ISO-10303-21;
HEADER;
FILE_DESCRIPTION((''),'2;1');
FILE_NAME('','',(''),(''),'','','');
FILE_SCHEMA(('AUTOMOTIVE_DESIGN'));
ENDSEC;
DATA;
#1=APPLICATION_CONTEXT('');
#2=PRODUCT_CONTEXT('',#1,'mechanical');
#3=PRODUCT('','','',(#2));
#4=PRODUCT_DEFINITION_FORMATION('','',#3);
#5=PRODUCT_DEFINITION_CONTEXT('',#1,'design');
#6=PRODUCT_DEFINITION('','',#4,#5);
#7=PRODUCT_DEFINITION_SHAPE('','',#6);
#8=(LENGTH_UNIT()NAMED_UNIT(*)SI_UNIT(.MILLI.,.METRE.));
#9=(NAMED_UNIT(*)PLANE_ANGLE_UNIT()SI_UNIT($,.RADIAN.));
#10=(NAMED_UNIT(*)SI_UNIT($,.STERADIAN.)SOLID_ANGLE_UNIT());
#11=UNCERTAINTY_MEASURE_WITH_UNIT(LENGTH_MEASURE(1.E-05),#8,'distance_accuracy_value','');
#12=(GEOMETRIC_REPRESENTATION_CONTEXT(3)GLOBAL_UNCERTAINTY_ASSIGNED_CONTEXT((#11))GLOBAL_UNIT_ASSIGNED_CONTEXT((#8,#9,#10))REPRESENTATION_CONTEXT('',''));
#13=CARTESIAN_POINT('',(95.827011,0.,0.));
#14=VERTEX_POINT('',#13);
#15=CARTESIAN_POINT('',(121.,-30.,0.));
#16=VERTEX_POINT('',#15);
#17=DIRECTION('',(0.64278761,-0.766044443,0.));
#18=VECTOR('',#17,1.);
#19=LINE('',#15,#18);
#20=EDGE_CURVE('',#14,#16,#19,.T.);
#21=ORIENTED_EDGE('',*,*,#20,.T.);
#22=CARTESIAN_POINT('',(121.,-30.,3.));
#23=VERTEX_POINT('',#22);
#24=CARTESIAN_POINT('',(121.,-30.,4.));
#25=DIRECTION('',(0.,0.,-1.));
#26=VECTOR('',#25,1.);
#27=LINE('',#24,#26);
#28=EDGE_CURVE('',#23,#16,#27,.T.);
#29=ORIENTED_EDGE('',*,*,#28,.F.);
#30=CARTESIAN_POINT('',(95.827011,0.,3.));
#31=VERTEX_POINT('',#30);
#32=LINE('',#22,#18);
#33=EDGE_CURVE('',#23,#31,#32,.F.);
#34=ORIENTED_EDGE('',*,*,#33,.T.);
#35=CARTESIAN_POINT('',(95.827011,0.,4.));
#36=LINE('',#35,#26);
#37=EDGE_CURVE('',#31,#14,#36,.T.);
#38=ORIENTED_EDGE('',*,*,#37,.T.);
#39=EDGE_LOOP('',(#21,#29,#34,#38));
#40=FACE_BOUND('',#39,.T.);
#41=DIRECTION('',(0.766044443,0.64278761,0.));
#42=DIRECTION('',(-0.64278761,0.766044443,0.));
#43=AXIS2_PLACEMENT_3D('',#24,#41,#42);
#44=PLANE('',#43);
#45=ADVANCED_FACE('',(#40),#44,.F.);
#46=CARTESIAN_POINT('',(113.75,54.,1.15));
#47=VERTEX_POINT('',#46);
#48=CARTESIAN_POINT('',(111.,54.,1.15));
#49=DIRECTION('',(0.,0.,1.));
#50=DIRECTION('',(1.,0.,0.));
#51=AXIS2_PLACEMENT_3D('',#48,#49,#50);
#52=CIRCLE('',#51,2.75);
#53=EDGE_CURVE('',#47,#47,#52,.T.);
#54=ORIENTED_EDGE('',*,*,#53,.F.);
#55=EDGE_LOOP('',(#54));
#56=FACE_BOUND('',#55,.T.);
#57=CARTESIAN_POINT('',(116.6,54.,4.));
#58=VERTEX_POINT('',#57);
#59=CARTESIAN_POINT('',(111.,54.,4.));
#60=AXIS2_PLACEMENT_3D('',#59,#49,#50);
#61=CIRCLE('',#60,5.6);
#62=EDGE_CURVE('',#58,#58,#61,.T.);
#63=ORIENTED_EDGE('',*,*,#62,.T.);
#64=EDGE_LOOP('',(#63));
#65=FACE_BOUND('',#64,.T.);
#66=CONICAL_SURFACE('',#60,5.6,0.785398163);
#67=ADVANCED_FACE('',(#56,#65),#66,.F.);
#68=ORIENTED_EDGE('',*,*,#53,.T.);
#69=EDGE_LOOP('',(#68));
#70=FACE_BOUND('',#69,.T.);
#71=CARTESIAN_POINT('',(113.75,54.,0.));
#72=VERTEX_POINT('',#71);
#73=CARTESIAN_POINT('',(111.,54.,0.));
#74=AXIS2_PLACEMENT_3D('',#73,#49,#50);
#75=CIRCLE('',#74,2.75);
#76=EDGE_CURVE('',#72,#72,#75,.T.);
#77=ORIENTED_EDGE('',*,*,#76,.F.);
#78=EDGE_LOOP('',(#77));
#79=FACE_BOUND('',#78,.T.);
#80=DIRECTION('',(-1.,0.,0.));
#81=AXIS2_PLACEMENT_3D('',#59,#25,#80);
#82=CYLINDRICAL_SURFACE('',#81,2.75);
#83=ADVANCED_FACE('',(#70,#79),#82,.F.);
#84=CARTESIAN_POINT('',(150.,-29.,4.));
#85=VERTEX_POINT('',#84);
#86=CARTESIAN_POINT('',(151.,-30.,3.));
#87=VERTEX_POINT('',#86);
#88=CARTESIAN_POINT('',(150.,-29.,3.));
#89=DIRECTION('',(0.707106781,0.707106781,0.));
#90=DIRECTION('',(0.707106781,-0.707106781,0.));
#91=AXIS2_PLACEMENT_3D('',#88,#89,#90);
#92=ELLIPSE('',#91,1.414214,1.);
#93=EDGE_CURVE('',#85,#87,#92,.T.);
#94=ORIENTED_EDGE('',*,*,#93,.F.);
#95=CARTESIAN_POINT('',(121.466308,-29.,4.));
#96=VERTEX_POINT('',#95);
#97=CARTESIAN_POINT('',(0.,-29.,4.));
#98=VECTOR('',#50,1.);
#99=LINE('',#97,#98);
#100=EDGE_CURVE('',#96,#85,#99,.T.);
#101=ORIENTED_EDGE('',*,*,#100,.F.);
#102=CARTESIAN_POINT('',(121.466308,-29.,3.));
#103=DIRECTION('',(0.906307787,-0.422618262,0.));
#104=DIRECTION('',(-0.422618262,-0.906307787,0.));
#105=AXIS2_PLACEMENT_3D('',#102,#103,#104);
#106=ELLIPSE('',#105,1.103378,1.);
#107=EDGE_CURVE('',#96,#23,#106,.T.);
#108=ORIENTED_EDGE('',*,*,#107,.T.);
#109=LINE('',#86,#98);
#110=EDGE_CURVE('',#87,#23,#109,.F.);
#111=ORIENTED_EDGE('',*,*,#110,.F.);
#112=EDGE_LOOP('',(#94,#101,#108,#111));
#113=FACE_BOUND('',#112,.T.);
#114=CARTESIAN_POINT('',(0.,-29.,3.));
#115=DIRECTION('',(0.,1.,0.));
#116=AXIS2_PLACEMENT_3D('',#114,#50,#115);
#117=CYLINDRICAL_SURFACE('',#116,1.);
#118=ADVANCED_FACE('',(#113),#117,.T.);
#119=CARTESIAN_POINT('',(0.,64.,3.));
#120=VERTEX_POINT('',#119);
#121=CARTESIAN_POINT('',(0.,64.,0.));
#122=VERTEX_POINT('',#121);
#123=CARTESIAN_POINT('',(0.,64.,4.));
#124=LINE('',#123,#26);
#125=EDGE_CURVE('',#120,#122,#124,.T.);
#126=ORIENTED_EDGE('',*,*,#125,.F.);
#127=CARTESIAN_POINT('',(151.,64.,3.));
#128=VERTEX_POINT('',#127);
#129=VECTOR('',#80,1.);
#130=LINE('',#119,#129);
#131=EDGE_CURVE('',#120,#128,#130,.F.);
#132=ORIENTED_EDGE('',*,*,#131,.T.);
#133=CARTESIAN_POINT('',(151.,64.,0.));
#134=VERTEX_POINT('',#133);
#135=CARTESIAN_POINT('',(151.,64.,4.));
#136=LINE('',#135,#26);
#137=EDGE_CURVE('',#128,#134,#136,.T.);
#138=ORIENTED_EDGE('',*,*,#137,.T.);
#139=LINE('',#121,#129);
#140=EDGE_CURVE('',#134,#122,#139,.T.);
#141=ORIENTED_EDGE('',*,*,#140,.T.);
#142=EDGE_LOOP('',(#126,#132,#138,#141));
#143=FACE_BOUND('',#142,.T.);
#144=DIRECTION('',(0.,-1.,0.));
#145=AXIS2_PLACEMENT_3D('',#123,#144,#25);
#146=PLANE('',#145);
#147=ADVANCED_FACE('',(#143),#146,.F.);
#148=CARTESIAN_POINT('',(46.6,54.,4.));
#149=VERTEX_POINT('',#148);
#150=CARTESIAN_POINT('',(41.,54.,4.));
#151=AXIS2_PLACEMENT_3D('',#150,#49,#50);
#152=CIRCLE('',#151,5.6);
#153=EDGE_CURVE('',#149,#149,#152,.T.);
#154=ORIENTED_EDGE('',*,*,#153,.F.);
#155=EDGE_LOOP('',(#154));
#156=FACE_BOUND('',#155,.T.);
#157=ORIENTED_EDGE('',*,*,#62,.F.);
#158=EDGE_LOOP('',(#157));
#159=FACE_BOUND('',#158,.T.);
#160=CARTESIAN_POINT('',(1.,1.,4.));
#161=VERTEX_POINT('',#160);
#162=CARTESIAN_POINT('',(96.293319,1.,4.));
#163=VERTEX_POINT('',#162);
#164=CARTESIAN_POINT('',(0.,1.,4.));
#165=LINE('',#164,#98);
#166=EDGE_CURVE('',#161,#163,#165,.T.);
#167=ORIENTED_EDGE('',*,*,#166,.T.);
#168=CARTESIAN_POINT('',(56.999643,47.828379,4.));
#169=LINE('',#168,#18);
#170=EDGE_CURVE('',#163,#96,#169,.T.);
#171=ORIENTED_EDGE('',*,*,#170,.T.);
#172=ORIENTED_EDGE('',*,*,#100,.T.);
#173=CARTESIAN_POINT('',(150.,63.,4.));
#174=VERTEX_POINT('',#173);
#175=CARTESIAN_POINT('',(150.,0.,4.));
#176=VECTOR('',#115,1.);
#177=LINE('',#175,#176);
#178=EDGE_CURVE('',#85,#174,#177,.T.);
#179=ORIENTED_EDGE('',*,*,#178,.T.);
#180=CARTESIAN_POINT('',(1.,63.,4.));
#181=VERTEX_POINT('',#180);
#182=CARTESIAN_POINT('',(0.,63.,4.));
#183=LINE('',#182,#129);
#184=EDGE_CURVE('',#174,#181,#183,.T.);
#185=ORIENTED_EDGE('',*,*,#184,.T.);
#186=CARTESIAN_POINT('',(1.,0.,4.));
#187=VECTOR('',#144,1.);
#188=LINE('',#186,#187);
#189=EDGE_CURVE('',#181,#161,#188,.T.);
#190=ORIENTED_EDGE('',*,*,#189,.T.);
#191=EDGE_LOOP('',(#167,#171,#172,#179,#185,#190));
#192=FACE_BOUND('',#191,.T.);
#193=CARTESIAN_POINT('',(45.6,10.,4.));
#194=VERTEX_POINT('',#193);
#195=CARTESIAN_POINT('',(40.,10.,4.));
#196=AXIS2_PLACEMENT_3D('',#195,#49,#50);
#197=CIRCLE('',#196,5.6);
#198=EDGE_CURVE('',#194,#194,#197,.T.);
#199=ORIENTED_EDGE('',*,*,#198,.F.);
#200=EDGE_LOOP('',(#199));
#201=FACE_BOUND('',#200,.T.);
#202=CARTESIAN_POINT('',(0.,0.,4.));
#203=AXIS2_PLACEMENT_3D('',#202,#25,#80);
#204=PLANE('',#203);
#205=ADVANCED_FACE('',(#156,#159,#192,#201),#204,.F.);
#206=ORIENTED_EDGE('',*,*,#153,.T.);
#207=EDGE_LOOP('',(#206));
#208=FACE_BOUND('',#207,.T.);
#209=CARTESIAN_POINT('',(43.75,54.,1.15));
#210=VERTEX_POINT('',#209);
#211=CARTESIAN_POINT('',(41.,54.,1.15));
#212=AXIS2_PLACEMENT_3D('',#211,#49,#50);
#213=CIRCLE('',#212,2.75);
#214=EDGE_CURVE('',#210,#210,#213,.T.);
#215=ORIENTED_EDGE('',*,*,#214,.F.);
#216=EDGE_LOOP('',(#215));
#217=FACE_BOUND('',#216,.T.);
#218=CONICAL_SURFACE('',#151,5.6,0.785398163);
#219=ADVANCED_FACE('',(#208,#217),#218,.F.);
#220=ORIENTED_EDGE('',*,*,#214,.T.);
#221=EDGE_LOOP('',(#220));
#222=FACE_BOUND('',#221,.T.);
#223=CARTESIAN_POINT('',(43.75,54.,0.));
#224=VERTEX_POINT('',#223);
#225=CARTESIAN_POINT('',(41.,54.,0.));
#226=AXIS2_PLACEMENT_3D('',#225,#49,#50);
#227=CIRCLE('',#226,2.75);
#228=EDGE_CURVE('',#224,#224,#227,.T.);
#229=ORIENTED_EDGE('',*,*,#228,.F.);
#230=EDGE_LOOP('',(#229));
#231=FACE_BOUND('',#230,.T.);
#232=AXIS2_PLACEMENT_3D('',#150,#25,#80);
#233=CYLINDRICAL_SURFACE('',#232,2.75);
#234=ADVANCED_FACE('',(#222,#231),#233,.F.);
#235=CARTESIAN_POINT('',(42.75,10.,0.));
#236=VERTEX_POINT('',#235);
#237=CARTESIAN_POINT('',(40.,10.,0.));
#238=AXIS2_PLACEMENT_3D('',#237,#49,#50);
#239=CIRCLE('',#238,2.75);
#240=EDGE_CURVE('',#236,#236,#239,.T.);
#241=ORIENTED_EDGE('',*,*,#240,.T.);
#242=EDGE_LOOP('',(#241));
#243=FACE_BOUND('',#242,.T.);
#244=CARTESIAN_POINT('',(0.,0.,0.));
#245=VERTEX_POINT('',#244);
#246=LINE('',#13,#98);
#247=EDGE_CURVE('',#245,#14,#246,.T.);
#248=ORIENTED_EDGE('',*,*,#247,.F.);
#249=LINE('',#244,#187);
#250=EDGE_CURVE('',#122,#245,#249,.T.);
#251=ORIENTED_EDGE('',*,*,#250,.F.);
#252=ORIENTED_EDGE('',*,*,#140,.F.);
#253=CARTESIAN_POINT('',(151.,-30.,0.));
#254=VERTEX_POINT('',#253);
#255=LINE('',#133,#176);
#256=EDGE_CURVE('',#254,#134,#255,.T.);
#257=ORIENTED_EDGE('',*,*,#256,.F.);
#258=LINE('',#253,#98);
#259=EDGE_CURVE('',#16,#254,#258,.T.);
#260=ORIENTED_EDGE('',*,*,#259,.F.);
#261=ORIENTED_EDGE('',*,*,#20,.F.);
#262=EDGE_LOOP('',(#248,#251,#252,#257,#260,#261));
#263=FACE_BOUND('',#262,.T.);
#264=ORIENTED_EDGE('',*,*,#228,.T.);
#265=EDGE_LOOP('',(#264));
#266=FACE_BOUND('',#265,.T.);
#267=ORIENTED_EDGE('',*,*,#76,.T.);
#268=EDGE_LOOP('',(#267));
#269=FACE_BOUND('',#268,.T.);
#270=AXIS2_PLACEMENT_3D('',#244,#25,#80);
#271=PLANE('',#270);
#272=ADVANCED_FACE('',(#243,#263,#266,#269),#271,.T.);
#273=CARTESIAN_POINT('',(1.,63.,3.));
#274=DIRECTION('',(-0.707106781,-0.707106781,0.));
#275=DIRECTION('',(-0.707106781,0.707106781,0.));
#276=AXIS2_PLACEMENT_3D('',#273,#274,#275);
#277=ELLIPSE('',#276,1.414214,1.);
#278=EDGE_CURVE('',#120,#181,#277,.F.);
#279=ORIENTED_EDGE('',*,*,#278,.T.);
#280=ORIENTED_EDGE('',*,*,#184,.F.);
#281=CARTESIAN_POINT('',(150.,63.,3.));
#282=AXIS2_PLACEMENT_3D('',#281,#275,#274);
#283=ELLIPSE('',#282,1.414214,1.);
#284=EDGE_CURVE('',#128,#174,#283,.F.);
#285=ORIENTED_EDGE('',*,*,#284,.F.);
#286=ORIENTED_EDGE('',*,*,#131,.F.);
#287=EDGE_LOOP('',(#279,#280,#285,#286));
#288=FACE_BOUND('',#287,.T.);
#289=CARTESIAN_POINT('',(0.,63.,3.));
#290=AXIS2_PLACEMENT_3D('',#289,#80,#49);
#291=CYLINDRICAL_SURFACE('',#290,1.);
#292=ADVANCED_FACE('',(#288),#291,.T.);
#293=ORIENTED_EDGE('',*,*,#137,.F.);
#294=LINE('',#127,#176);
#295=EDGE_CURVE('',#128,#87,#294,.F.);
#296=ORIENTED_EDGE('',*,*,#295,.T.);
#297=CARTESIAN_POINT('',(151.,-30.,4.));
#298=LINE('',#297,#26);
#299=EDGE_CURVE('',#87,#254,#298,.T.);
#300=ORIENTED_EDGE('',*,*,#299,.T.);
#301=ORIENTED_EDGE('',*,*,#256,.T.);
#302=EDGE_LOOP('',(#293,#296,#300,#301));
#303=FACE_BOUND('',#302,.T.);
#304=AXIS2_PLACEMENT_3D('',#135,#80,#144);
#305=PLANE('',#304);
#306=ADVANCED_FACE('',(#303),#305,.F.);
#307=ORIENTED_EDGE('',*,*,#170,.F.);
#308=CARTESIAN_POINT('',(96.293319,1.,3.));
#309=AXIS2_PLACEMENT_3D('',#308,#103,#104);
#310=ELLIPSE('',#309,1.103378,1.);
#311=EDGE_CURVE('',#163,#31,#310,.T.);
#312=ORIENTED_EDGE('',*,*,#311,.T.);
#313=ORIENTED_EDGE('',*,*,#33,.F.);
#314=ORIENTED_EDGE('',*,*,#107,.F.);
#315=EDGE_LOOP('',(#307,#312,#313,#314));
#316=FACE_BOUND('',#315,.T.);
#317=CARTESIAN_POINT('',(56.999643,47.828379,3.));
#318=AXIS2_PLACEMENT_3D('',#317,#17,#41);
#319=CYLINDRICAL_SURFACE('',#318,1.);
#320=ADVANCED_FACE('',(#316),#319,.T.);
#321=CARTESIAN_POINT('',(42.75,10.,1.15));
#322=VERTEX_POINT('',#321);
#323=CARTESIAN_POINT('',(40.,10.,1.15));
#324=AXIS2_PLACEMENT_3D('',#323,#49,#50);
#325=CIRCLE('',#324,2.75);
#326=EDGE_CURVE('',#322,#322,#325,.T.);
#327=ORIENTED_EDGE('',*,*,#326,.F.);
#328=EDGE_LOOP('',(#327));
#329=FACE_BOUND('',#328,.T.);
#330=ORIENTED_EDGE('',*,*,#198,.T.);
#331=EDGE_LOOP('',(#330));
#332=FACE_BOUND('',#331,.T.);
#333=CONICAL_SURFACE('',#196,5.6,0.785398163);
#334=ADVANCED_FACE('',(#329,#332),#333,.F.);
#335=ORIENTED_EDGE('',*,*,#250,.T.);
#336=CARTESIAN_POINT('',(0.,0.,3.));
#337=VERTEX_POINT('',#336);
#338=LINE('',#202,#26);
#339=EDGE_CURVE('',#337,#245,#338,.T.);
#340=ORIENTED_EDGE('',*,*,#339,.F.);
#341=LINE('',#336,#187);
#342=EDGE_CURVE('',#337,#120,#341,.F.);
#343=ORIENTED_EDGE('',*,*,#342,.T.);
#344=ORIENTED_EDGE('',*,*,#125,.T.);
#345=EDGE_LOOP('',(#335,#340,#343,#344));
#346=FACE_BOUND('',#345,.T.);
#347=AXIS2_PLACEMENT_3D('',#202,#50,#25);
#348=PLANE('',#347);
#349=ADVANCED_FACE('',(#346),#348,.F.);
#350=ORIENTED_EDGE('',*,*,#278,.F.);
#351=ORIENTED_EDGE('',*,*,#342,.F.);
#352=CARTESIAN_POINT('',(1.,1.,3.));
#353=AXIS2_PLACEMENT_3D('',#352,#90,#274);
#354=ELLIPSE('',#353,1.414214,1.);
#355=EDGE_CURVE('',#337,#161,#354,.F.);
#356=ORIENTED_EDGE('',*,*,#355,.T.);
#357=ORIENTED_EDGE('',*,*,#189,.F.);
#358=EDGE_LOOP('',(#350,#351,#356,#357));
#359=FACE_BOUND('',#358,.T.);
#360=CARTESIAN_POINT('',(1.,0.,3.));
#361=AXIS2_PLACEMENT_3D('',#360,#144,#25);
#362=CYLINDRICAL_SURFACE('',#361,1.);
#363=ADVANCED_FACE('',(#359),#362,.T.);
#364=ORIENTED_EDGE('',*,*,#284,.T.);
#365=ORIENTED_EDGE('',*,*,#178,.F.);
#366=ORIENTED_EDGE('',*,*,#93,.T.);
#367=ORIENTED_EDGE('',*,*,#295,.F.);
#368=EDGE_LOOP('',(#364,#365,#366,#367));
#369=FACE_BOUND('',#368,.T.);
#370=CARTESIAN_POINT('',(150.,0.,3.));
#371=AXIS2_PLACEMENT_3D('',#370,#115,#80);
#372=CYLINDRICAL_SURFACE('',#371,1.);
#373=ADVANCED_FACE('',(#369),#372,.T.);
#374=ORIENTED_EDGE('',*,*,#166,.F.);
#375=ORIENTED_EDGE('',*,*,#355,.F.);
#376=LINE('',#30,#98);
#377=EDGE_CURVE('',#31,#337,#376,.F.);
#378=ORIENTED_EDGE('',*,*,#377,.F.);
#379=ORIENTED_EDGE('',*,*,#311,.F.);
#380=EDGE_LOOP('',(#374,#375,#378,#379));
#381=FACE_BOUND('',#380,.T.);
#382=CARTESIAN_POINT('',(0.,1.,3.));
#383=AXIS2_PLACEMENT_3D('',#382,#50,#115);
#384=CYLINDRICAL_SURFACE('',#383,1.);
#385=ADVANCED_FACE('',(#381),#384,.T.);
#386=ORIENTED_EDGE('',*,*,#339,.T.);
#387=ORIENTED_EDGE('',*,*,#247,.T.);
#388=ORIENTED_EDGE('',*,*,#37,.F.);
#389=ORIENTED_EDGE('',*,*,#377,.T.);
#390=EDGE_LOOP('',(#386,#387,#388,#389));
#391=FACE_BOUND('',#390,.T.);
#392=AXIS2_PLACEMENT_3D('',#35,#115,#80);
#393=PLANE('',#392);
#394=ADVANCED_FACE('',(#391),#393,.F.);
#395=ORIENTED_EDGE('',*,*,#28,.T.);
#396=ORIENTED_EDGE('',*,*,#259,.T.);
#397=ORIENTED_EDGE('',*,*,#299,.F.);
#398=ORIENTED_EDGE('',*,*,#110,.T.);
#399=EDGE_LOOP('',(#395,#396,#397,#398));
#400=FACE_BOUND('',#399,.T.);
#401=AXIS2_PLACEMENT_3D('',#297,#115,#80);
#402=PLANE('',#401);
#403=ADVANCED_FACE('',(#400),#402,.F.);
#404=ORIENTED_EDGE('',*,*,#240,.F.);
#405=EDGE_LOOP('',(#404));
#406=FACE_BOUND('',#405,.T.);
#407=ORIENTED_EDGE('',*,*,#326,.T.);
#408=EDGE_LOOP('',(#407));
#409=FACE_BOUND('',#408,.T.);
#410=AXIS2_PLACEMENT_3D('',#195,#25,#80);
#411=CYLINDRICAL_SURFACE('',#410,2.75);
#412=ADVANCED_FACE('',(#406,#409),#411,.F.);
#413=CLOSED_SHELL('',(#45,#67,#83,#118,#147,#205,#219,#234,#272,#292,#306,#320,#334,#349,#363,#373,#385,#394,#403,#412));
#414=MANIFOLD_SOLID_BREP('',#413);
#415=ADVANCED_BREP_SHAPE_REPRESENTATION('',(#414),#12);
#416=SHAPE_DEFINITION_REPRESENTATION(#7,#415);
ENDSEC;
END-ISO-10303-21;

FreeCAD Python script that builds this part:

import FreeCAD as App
import Part
import Sketcher
from FreeCAD import Vector
Q = App.Units.Quantity


def edges_at(feature, points):
    """Names of the edges that pass closest to the given points."""
    edges = feature.Shape.Edges
    near = lambda p: min(range(len(edges)), key=lambda i: edges[i].distToShape(Part.Vertex(*p))[0])
    return sorted({f"Edge{near(p) + 1}" for p in points})


def add_polygon(sketch, points):
    """Adds a closed chain of lines whose ends are joined by coincident constraints."""
    first, n = sketch.GeometryCount, len(points)
    for a, b in zip(points, points[1:] + points[:1]):
        sketch.addGeometry(Part.LineSegment(App.Vector(*a, 0), App.Vector(*b, 0)), False)
    for i in range(n):
        sketch.addConstraint(Sketcher.Constraint("Coincident", first + i, 2, first + (i + 1) % n, 1))

doc = App.newDocument("Part")
params = doc.addObject("Spreadsheet::Sheet", "Params")
for row, (alias, value) in enumerate([
    ("sketch1_diameter", "5.5 mm"),
    ("sketch1_width", "30 mm"),
    ("sketch1_width2", "151 mm"),
    ("sketch1_height", "64 mm"),
    ("sketch1_height2", "94 mm"),
    ("pad1_length", "4 mm"),
    ("fillet_radius", "1 mm"),
    ("sketch2_diameter", "5.5 mm"),
    ("hole_diameter", "5.5 mm"),
    ("hole_depth", "12.4 mm"),
    ("hole_csink_diameter", "11.2 mm"),
], start=1):
    params.set(f"A{row}", alias)
    params.set(f"B{row}", "=" + value)
    params.setAlias(f"B{row}", alias)

body = doc.addObject("PartDesign::Body", "Body")

sketch1 = doc.addObject("Sketcher::SketchObject", "Sketch")
body.addObject(sketch1)
sketch1.AttachmentSupport = (doc.XY_Plane, [""])
sketch1.MapMode = "FlatFace"
add_polygon(sketch1, [(0, 64), (0, 0), (95.8, 0), (121, -30), (151, -30), (151, 64)])
sketch1.addGeometry(Part.Circle(Vector(40, 10, 0), Vector(0, 0, 1), 2.8), False)
sketch1.addGeometry(Part.Circle(Vector(111, 54, 0), Vector(0, 0, 1), 2.8), False)
sketch1.addGeometry(Part.Circle(Vector(41, 54, 0), Vector(0, 0, 1), 2.8), False)
sketch1.addConstraint(Sketcher.Constraint("Vertical", 0))
sketch1.addConstraint(Sketcher.Constraint("Horizontal", 1))
sketch1.addConstraint(Sketcher.Constraint("Horizontal", 3))
sketch1.addConstraint(Sketcher.Constraint("Vertical", 4))
sketch1.addConstraint(Sketcher.Constraint("Horizontal", 5))
sketch1.addConstraint(Sketcher.Constraint("Coincident", 0, 2, -1, 1))
sketch1.addConstraint(Sketcher.Constraint("Equal", 6, 7))
sketch1.addConstraint(Sketcher.Constraint("Equal", 7, 8))
sketch1.addConstraint(Sketcher.Constraint("Horizontal", 7, 3, 8, 3))
sketch1.addConstraint(Sketcher.Constraint("Diameter", 6, Q("5.5 mm")))
sketch1.addConstraint(Sketcher.Constraint("DistanceX", 3, 1, 3, 2, Q("30 mm")))
sketch1.addConstraint(Sketcher.Constraint("DistanceX", 5, 2, 5, 1, Q("151 mm")))
sketch1.addConstraint(Sketcher.Constraint("DistanceY", 0, 2, 0, 1, Q("64 mm")))
sketch1.addConstraint(Sketcher.Constraint("DistanceY", 4, 1, 4, 2, Q("94 mm")))
sketch1.addConstraint(Sketcher.Constraint("Angle", 2, Q("-50 deg")))
sketch1.addConstraint(Sketcher.Constraint("DistanceX", -1, 1, 6, 3, Q("40 mm")))
sketch1.addConstraint(Sketcher.Constraint("DistanceY", -1, 1, 6, 3, Q("10 mm")))
sketch1.addConstraint(Sketcher.Constraint("DistanceX", -1, 1, 7, 3, Q("111 mm")))
sketch1.addConstraint(Sketcher.Constraint("DistanceY", -1, 1, 7, 3, Q("54 mm")))
sketch1.addConstraint(Sketcher.Constraint("DistanceX", -1, 1, 8, 3, Q("41 mm")))
sketch1.setExpression("Constraints[15]", "Params.sketch1_diameter")
sketch1.setExpression("Constraints[16]", "Params.sketch1_width")
sketch1.setExpression("Constraints[17]", "Params.sketch1_width2")
sketch1.setExpression("Constraints[18]", "Params.sketch1_height")
sketch1.setExpression("Constraints[19]", "Params.sketch1_height2")
pad1 = doc.addObject("PartDesign::Pad", "Pad")
body.addObject(pad1)
pad1.Profile = sketch1
pad1.setExpression("Length", "Params.pad1_length")
doc.recompute()

fillet = doc.addObject("PartDesign::Fillet", "Fillet")
body.addObject(fillet)
fillet.Base = (pad1, edges_at(pad1, [
    (136, -30, 4),
    (151, 17, 4),
    (75.5, 64, 4),
    (0, 32, 4),
    (47.914, 0, 4),
    (108.414, -15, 4),
]))
fillet.setExpression("Radius", "Params.fillet_radius")

sketch2 = doc.addObject("Sketcher::SketchObject", "Sketch001")
body.addObject(sketch2)
sketch2.AttachmentSupport = (doc.XY_Plane, [""])
sketch2.MapMode = "FlatFace"
sketch2.AttachmentOffset = App.Placement(Vector(0, 0, 4), App.Rotation())
sketch2.addGeometry(Part.Circle(Vector(41, 54, 0), Vector(0, 0, 1), 2.8), False)
sketch2.addGeometry(Part.Circle(Vector(111, 54, 0), Vector(0, 0, 1), 2.8), False)
sketch2.addGeometry(Part.Circle(Vector(40, 10, 0), Vector(0, 0, 1), 2.8), False)
sketch2.addConstraint(Sketcher.Constraint("Equal", 0, 1))
sketch2.addConstraint(Sketcher.Constraint("Equal", 1, 2))
sketch2.addConstraint(Sketcher.Constraint("Horizontal", 0, 3, 1, 3))
sketch2.addConstraint(Sketcher.Constraint("Diameter", 0, Q("5.5 mm")))
sketch2.addConstraint(Sketcher.Constraint("DistanceX", -1, 1, 0, 3, Q("41 mm")))
sketch2.addConstraint(Sketcher.Constraint("DistanceY", -1, 1, 0, 3, Q("54 mm")))
sketch2.addConstraint(Sketcher.Constraint("DistanceX", -1, 1, 1, 3, Q("111 mm")))
sketch2.addConstraint(Sketcher.Constraint("DistanceX", -1, 1, 2, 3, Q("40 mm")))
sketch2.addConstraint(Sketcher.Constraint("DistanceY", -1, 1, 2, 3, Q("10 mm")))
sketch2.setExpression("Constraints[3]", "Params.sketch2_diameter")
doc.recompute()
hole = doc.addObject("PartDesign::Hole", "Hole")
body.addObject(hole)
hole.Profile = sketch2
hole.ThreadType = "None"
hole.setExpression("Diameter", "Params.hole_diameter")
hole.DepthType = "Dimension"
hole.setExpression("Depth", "Params.hole_depth")
hole.DrillPoint = "Angled"
hole.DrillPointAngle = 118
hole.HoleCutType = "Countersink"
hole.setExpression("HoleCutDiameter", "Params.hole_csink_diameter")
hole.HoleCutCountersinkAngle = 90

doc.recompute()
